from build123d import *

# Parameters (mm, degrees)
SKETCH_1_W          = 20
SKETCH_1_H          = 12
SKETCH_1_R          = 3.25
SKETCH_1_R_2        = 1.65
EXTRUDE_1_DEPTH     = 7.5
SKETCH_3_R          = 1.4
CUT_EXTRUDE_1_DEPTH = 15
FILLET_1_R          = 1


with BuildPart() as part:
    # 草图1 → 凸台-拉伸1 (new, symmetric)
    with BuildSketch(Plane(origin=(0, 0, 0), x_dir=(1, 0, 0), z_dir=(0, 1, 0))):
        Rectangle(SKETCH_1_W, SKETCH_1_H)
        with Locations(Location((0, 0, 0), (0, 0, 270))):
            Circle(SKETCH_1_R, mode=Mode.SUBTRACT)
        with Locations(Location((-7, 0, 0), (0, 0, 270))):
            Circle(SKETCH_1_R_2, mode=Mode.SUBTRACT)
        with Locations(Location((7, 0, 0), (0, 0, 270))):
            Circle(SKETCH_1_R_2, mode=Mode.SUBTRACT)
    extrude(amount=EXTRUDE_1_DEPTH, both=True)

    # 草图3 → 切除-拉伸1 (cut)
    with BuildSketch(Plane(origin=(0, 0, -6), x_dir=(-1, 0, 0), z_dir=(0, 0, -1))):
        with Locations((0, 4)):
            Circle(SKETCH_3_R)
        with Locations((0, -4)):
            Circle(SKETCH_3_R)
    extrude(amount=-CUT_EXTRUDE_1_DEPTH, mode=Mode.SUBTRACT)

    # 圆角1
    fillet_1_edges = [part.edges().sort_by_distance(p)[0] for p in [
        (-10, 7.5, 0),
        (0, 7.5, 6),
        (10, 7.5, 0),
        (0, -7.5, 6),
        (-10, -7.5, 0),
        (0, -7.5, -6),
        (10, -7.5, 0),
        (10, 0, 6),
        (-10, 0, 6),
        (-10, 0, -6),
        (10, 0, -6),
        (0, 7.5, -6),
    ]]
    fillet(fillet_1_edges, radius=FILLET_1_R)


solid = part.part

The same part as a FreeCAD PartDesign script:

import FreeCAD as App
import Part
import Sketcher

V = App.Vector
Q = App.Units.Quantity


def edges_at(feature, points):
    """Names of the edges that pass closest to the given points."""
    edges = feature.Shape.Edges
    near = lambda p: min(range(len(edges)), key=lambda i: edges[i].distToShape(Part.Vertex(*p))[0])
    return sorted({f"Edge{near(p) + 1}" for p in points})

doc = App.newDocument("Part")
body = doc.addObject("PartDesign::Body", "Body")

# Sketch on XZ plane
sketch1 = body.newObject("Sketcher::SketchObject", "Sketch")
sketch1.AttachmentSupport = (doc.getObject("XZ_Plane"), [""])
sketch1.MapMode = "FlatFace"
sketch1.addGeometry(Part.LineSegment(V(-10, -6, 0), V(-10, 6, 0)), False)
sketch1.addGeometry(Part.LineSegment(V(-10, 6, 0), V(10, 6, 0)), False)
sketch1.addGeometry(Part.LineSegment(V(10, 6, 0), V(10, -6, 0)), False)
sketch1.addGeometry(Part.LineSegment(V(10, -6, 0), V(-10, -6, 0)), False)
sketch1.addGeometry(Part.Circle(V(-7, 0, 0), V(0, 0, 1), 1.6), False)
sketch1.addGeometry(Part.Circle(V(0, 0, 0), V(0, 0, 1), 3.2), False)
sketch1.addGeometry(Part.Circle(V(7, 0, 0), V(0, 0, 1), 1.6), False)
sketch1.addConstraint(Sketcher.Constraint("Coincident", 0, 2, 1, 1))
sketch1.addConstraint(Sketcher.Constraint("Coincident", 1, 2, 2, 1))
sketch1.addConstraint(Sketcher.Constraint("Coincident", 2, 2, 3, 1))
sketch1.addConstraint(Sketcher.Constraint("Coincident", 3, 2, 0, 1))
sketch1.addConstraint(Sketcher.Constraint("Vertical", 0))
sketch1.addConstraint(Sketcher.Constraint("Horizontal", 1))
sketch1.addConstraint(Sketcher.Constraint("Vertical", 2))
sketch1.addConstraint(Sketcher.Constraint("Horizontal", 3))
sketch1.addConstraint(Sketcher.Constraint("Coincident", 5, 3, -1, 1))
sketch1.addConstraint(Sketcher.Constraint("Equal", 4, 6))
sketch1.addConstraint(Sketcher.Constraint("Symmetric", 4, 3, 6, 3, -1, 1))
sketch1.addConstraint(Sketcher.Constraint("Symmetric", 0, 2, 2, 2, -1, 1))
sketch1.addConstraint(Sketcher.Constraint("PointOnObject", 4, 3, -1))
sketch1.addConstraint(Sketcher.Constraint("Diameter", 4, Q("3.3 mm")))
sketch1.addConstraint(Sketcher.Constraint("Diameter", 5, Q("6.5 mm")))
sketch1.addConstraint(Sketcher.Constraint("DistanceX", 1, 1, 1, 2, Q("20 mm")))
sketch1.addConstraint(Sketcher.Constraint("DistanceY", 0, 1, 0, 2, Q("12 mm")))
sketch1.addConstraint(Sketcher.Constraint("DistanceX", 4, 3, -1, 1, Q("7 mm")))
pad1 = body.newObject("PartDesign::Pad", "Pad")
pad1.Profile = sketch1
pad1.Length = 15
pad1.Midplane = True

# Sketch on XY plane
sketch2 = body.newObject("Sketcher::SketchObject", "Sketch001")
sketch2.AttachmentSupport = (doc.getObject("XY_Plane"), [""])
sketch2.MapMode = "FlatFace"
sketch2.AttachmentOffset = App.Placement(V(0, 0, -6), App.Rotation())
sketch2.addGeometry(Part.Circle(V(0, 4, 0), V(0, 0, 1), 1.4), False)
sketch2.addGeometry(Part.Circle(V(0, -4, 0), V(0, 0, 1), 1.4), False)
sketch2.addConstraint(Sketcher.Constraint("Equal", 0, 1))
sketch2.addConstraint(Sketcher.Constraint("Symmetric", 0, 3, 1, 3, -1, 1))
sketch2.addConstraint(Sketcher.Constraint("PointOnObject", 0, 3, -2))
sketch2.addConstraint(Sketcher.Constraint("Diameter", 0, Q("2.8 mm")))
sketch2.addConstraint(Sketcher.Constraint("DistanceY", -1, 1, 0, 3, Q("4 mm")))
pocket1 = body.newObject("PartDesign::Pocket", "Pocket")
pocket1.Profile = sketch2
pocket1.Length = 15
pocket1.Reversed = True
doc.recompute()

fillet = body.newObject("PartDesign::Fillet", "Fillet")
fillet.Base = (pocket1, edges_at(pocket1, [
    (-10, 7.5, 0),
    (0, 7.5, 6),
    (10, 7.5, 0),
    (0, -7.5, 6),
    (-10, -7.5, 0),
    (0, -7.5, -6),
    (10, -7.5, 0),
    (10, 0, 6),
    (-10, 0, 6),
    (-10, 0, -6),
    (10, 0, -6),
    (0, 7.5, -6),
]))
fillet.Radius = 1

doc.recompute()
